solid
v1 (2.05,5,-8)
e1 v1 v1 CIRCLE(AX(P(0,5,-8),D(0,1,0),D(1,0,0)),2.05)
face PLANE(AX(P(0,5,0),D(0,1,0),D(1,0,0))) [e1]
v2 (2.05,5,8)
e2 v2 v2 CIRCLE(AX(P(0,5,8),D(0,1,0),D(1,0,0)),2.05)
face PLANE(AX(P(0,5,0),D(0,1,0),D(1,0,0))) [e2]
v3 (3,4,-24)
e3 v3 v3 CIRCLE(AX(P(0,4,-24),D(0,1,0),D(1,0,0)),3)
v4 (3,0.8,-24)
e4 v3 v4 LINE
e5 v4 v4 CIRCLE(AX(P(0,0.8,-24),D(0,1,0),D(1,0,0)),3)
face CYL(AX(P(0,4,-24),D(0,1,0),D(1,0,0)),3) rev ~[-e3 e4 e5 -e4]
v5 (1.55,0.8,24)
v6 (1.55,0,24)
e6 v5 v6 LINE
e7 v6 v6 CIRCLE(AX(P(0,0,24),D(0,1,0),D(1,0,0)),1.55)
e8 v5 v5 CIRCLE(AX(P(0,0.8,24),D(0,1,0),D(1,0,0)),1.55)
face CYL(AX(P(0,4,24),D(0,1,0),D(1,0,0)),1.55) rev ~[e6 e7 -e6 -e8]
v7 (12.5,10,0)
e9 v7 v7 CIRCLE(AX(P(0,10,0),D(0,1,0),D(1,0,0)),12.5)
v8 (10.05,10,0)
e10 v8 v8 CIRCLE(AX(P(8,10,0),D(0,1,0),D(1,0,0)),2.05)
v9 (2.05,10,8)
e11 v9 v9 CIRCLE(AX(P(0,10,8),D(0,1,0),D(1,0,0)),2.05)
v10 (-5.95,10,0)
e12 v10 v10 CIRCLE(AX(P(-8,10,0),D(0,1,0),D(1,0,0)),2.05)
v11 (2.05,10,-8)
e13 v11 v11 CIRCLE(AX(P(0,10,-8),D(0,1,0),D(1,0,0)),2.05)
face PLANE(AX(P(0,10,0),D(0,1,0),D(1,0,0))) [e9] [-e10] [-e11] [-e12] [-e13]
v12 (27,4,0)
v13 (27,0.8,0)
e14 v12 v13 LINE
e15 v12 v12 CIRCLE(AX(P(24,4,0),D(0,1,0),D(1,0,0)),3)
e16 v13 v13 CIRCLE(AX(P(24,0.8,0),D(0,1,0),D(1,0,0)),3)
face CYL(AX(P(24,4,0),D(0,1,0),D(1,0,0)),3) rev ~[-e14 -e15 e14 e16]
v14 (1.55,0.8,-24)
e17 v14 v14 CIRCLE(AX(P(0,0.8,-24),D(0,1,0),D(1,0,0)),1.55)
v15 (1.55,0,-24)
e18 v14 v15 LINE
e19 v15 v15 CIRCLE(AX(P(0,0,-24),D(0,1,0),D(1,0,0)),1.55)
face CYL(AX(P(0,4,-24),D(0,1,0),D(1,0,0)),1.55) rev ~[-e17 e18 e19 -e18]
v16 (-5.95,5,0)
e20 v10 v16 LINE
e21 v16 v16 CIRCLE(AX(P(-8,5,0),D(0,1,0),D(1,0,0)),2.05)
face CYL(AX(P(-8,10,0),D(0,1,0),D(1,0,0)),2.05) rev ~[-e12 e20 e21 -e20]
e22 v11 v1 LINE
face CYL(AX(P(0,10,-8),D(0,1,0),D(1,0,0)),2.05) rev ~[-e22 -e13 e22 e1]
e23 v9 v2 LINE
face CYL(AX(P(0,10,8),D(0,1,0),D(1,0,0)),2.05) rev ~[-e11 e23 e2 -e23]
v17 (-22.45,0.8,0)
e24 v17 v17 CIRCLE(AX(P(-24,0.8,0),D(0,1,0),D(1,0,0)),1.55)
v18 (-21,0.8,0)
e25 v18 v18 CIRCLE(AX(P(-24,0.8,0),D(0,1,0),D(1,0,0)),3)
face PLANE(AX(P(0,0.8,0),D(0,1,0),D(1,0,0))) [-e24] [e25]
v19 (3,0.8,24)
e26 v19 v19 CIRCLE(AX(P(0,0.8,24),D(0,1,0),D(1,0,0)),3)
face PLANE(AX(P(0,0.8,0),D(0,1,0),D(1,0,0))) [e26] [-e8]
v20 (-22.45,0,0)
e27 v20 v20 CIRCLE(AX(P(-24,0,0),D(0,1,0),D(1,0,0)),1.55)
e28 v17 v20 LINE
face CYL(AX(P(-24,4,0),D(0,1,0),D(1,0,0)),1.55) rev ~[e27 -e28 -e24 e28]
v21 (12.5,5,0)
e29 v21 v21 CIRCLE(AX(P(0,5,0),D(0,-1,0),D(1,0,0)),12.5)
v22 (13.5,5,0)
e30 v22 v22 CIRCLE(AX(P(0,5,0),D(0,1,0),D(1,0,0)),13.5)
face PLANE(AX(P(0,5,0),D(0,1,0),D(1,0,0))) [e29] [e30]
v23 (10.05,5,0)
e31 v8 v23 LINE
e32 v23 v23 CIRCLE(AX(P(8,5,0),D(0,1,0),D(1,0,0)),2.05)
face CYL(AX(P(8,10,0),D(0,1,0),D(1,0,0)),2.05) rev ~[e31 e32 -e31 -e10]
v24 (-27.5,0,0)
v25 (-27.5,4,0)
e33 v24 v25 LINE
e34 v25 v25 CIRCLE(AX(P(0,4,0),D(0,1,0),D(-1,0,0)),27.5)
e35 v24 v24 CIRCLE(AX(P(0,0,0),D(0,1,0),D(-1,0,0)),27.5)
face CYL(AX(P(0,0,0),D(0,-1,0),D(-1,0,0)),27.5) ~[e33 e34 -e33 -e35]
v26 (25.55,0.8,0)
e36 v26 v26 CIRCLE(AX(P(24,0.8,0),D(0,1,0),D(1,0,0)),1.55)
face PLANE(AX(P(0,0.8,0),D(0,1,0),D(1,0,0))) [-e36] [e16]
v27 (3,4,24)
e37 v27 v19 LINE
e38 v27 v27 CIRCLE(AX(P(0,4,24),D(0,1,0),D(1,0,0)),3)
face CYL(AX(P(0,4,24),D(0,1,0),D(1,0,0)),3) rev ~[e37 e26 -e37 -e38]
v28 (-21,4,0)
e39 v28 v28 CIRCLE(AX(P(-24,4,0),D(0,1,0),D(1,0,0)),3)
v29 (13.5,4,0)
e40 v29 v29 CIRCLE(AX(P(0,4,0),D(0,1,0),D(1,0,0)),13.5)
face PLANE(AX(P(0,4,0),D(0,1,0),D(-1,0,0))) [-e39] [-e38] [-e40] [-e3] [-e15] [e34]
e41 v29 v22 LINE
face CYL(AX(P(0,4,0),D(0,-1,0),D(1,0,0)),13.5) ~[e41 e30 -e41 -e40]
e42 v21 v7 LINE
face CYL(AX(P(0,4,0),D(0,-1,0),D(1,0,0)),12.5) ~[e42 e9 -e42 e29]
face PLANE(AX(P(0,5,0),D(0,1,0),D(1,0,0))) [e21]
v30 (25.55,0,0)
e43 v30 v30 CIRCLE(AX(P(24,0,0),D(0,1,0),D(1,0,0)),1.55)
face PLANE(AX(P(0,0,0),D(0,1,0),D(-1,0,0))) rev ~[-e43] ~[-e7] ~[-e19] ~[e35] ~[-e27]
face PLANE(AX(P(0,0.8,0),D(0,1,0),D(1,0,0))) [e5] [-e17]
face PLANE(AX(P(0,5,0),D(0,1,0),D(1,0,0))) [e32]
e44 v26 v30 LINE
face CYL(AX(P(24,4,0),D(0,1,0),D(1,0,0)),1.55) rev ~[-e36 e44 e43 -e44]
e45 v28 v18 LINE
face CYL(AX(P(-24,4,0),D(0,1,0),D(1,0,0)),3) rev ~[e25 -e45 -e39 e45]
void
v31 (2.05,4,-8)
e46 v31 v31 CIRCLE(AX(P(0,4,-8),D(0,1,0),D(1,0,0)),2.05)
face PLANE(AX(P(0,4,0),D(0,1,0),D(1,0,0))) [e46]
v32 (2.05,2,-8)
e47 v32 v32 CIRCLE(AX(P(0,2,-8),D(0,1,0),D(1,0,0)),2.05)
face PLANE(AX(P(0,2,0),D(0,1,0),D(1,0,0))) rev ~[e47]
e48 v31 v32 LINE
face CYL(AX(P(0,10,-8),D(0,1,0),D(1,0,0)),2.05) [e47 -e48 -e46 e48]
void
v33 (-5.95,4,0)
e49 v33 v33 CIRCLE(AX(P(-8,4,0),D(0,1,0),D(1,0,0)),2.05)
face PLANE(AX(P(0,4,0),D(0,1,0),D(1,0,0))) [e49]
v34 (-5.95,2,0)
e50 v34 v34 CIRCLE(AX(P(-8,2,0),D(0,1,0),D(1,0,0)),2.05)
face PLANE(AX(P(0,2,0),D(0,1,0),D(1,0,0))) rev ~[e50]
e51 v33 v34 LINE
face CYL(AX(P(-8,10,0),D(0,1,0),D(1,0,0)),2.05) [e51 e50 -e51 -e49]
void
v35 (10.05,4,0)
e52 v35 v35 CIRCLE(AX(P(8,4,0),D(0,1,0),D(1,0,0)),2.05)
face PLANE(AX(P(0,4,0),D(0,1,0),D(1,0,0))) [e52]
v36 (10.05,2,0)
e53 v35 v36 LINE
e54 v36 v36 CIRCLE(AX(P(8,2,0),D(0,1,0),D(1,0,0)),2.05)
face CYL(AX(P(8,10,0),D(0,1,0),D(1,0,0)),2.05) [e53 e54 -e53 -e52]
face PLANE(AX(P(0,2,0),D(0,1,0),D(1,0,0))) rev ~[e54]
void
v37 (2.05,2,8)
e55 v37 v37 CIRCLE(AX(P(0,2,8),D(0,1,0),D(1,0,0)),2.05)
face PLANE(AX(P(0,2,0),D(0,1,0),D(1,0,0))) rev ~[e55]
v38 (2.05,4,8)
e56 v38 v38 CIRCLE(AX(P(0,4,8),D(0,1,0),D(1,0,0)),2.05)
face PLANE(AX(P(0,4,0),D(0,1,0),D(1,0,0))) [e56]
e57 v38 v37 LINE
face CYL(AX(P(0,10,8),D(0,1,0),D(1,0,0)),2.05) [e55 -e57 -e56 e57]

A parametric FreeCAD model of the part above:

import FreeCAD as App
import Part
import Sketcher

V = App.Vector
Q = App.Units.Quantity

doc = App.newDocument("Part")
body = doc.addObject("PartDesign::Body", "Body")

sketch1 = body.newObject("Sketcher::SketchObject", "Sketch")
sketch1.AttachmentSupport = (doc.getObject("XZ_Plane"), [""])
sketch1.MapMode = "FlatFace"
sketch1.addGeometry(Part.Circle(V(0, 0, 0), V(0, 0, 1), 28), False)
sketch1.addConstraint(Sketcher.Constraint("Coincident", 0, 3, -1, 1))
sketch1.addConstraint(Sketcher.Constraint("Diameter", 0, Q("55 mm")))
pad1 = body.newObject("PartDesign::Pad", "Pad")
pad1.Profile = sketch1
pad1.Length = 4
pad1.Reversed = True

sketch2 = body.newObject("Sketcher::SketchObject", "Sketch001")
sketch2.AttachmentSupport = (doc.getObject("XZ_Plane"), [""])
sketch2.MapMode = "FlatFace"
sketch2.AttachmentOffset = App.Placement(V(0, 0, -4), App.Rotation())
sketch2.addGeometry(Part.Circle(V(-24, 0, 0), V(0, 0, 1), 1.6), False)
sketch2.addGeometry(Part.Circle(V(0, 24, 0), V(0, 0, 1), 1.6), False)
sketch2.addGeometry(Part.Circle(V(24, 0, 0), V(0, 0, 1), 1.6), False)
sketch2.addGeometry(Part.Circle(V(0, -24, 0), V(0, 0, 1), 1.6), False)
sketch2.addConstraint(Sketcher.Constraint("Equal", 0, 1))
sketch2.addConstraint(Sketcher.Constraint("Equal", 1, 2))
sketch2.addConstraint(Sketcher.Constraint("Equal", 2, 3))
sketch2.addConstraint(Sketcher.Constraint("Symmetric", 0, 3, 2, 3, -1, 1))
sketch2.addConstraint(Sketcher.Constraint("Symmetric", 1, 3, 3, 3, -1, 1))
sketch2.addConstraint(Sketcher.Constraint("PointOnObject", 0, 3, -1))
sketch2.addConstraint(Sketcher.Constraint("PointOnObject", 1, 3, -2))
sketch2.addConstraint(Sketcher.Constraint("Diameter", 0, Q("3.1 mm")))
sketch2.addConstraint(Sketcher.Constraint("DistanceX", 0, 3, -1, 1, Q("24 mm")))
sketch2.addConstraint(Sketcher.Constraint("DistanceY", -1, 1, 1, 3, Q("24 mm")))
pocket1 = body.newObject("PartDesign::Pocket", "Pocket")
pocket1.Profile = sketch2
pocket1.Length = 4
pocket1.Reversed = True

sketch3 = body.newObject("Sketcher::SketchObject", "Sketch002")
sketch3.AttachmentSupport = (doc.getObject("XZ_Plane"), [""])
sketch3.MapMode = "FlatFace"
sketch3.AttachmentOffset = App.Placement(V(0, 0, -4), App.Rotation())
sketch3.addGeometry(Part.Circle(V(0, 0, 0), V(0, 0, 1), 12), False)
sketch3.addConstraint(Sketcher.Constraint("Coincident", 0, 3, -1, 1))
sketch3.addConstraint(Sketcher.Constraint("Diameter", 0, Q("25 mm")))
pad2 = body.newObject("PartDesign::Pad", "Pad001")
pad2.Profile = sketch3
pad2.Length = 6
pad2.Reversed = True

sketch4 = body.newObject("Sketcher::SketchObject", "Sketch003")
sketch4.AttachmentSupport = (doc.getObject("XZ_Plane"), [""])
sketch4.MapMode = "FlatFace"
sketch4.AttachmentOffset = App.Placement(V(0, 0, -10), App.Rotation())
sketch4.addGeometry(Part.Circle(V(-8, 0, 0), V(0, 0, 1), 2), False)
sketch4.addGeometry(Part.Circle(V(0, 8, 0), V(0, 0, 1), 2), False)
sketch4.addGeometry(Part.Circle(V(8, 0, 0), V(0, 0, 1), 2), False)
sketch4.addGeometry(Part.Circle(V(0, -8, 0), V(0, 0, 1), 2), False)
sketch4.addConstraint(Sketcher.Constraint("Equal", 0, 1))
sketch4.addConstraint(Sketcher.Constraint("Equal", 1, 2))
sketch4.addConstraint(Sketcher.Constraint("Equal", 2, 3))
sketch4.addConstraint(Sketcher.Constraint("Symmetric", 0, 3, 2, 3, -1, 1))
sketch4.addConstraint(Sketcher.Constraint("Symmetric", 1, 3, 3, 3, -1, 1))
sketch4.addConstraint(Sketcher.Constraint("PointOnObject", 0, 3, -1))
sketch4.addConstraint(Sketcher.Constraint("PointOnObject", 1, 3, -2))
sketch4.addConstraint(Sketcher.Constraint("Diameter", 0, Q("4.1 mm")))
sketch4.addConstraint(Sketcher.Constraint("DistanceX", 0, 3, -1, 1, Q("8 mm")))
sketch4.addConstraint(Sketcher.Constraint("DistanceY", -1, 1, 1, 3, Q("8 mm")))
pocket2 = body.newObject("PartDesign::Pocket", "Pocket001")
pocket2.Profile = sketch4
pocket2.Length = 8
pocket2.Reversed = True

sketch5 = body.newObject("Sketcher::SketchObject", "Sketch004")
sketch5.AttachmentSupport = (doc.getObject("XZ_Plane"), [""])
sketch5.MapMode = "FlatFace"
sketch5.AttachmentOffset = App.Placement(V(0, 0, -4), App.Rotation())
sketch5.addGeometry(Part.Circle(V(-24, 0, 0), V(0, 0, 1), 3), False)
sketch5.addGeometry(Part.Circle(V(-24, 0, 0), V(0, 0, 1), 1.6), False)
sketch5.addGeometry(Part.Circle(V(0, 24, 0), V(0, 0, 1), 3), False)
sketch5.addGeometry(Part.Circle(V(24, 0, 0), V(0, 0, 1), 3), False)
sketch5.addGeometry(Part.Circle(V(0, -24, 0), V(0, 0, 1), 3), False)
sketch5.addConstraint(Sketcher.Constraint("Coincident", 1, 3, 0, 3))
sketch5.addConstraint(Sketcher.Constraint("Equal", 0, 2))
sketch5.addConstraint(Sketcher.Constraint("Equal", 2, 3))
sketch5.addConstraint(Sketcher.Constraint("Equal", 3, 4))
sketch5.addConstraint(Sketcher.Constraint("Symmetric", 0, 3, 3, 3, -1, 1))
sketch5.addConstraint(Sketcher.Constraint("Symmetric", 2, 3, 4, 3, -1, 1))
sketch5.addConstraint(Sketcher.Constraint("PointOnObject", 0, 3, -1))
sketch5.addConstraint(Sketcher.Constraint("PointOnObject", 2, 3, -2))
sketch5.addConstraint(Sketcher.Constraint("Diameter", 0, Q("6 mm")))
sketch5.addConstraint(Sketcher.Constraint("Diameter", 1, Q("3.1 mm")))
sketch5.addConstraint(Sketcher.Constraint("DistanceX", 0, 3, -1, 1, Q("24 mm")))
sketch5.addConstraint(Sketcher.Constraint("DistanceY", -1, 1, 2, 3, Q("24 mm")))
pocket3 = body.newObject("PartDesign::Pocket", "Pocket002")
pocket3.Profile = sketch5
pocket3.Length = 3.2
pocket3.Reversed = True

sketch6 = body.newObject("Sketcher::SketchObject", "Sketch005")
sketch6.AttachmentSupport = (doc.getObject("XZ_Plane"), [""])
sketch6.MapMode = "FlatFace"
sketch6.AttachmentOffset = App.Placement(V(0, 0, -4), App.Rotation())
sketch6.addGeometry(Part.Circle(V(0, 0, 0), V(0, 0, 1), 14), False)
sketch6.addConstraint(Sketcher.Constraint("Coincident", 0, 3, -1, 1))
sketch6.addConstraint(Sketcher.Constraint("Diameter", 0, Q("27 mm")))
pad3 = body.newObject("PartDesign::Pad", "Pad002")
pad3.Profile = sketch6
pad3.Length = 1
pad3.Reversed = True

doc.recompute()
